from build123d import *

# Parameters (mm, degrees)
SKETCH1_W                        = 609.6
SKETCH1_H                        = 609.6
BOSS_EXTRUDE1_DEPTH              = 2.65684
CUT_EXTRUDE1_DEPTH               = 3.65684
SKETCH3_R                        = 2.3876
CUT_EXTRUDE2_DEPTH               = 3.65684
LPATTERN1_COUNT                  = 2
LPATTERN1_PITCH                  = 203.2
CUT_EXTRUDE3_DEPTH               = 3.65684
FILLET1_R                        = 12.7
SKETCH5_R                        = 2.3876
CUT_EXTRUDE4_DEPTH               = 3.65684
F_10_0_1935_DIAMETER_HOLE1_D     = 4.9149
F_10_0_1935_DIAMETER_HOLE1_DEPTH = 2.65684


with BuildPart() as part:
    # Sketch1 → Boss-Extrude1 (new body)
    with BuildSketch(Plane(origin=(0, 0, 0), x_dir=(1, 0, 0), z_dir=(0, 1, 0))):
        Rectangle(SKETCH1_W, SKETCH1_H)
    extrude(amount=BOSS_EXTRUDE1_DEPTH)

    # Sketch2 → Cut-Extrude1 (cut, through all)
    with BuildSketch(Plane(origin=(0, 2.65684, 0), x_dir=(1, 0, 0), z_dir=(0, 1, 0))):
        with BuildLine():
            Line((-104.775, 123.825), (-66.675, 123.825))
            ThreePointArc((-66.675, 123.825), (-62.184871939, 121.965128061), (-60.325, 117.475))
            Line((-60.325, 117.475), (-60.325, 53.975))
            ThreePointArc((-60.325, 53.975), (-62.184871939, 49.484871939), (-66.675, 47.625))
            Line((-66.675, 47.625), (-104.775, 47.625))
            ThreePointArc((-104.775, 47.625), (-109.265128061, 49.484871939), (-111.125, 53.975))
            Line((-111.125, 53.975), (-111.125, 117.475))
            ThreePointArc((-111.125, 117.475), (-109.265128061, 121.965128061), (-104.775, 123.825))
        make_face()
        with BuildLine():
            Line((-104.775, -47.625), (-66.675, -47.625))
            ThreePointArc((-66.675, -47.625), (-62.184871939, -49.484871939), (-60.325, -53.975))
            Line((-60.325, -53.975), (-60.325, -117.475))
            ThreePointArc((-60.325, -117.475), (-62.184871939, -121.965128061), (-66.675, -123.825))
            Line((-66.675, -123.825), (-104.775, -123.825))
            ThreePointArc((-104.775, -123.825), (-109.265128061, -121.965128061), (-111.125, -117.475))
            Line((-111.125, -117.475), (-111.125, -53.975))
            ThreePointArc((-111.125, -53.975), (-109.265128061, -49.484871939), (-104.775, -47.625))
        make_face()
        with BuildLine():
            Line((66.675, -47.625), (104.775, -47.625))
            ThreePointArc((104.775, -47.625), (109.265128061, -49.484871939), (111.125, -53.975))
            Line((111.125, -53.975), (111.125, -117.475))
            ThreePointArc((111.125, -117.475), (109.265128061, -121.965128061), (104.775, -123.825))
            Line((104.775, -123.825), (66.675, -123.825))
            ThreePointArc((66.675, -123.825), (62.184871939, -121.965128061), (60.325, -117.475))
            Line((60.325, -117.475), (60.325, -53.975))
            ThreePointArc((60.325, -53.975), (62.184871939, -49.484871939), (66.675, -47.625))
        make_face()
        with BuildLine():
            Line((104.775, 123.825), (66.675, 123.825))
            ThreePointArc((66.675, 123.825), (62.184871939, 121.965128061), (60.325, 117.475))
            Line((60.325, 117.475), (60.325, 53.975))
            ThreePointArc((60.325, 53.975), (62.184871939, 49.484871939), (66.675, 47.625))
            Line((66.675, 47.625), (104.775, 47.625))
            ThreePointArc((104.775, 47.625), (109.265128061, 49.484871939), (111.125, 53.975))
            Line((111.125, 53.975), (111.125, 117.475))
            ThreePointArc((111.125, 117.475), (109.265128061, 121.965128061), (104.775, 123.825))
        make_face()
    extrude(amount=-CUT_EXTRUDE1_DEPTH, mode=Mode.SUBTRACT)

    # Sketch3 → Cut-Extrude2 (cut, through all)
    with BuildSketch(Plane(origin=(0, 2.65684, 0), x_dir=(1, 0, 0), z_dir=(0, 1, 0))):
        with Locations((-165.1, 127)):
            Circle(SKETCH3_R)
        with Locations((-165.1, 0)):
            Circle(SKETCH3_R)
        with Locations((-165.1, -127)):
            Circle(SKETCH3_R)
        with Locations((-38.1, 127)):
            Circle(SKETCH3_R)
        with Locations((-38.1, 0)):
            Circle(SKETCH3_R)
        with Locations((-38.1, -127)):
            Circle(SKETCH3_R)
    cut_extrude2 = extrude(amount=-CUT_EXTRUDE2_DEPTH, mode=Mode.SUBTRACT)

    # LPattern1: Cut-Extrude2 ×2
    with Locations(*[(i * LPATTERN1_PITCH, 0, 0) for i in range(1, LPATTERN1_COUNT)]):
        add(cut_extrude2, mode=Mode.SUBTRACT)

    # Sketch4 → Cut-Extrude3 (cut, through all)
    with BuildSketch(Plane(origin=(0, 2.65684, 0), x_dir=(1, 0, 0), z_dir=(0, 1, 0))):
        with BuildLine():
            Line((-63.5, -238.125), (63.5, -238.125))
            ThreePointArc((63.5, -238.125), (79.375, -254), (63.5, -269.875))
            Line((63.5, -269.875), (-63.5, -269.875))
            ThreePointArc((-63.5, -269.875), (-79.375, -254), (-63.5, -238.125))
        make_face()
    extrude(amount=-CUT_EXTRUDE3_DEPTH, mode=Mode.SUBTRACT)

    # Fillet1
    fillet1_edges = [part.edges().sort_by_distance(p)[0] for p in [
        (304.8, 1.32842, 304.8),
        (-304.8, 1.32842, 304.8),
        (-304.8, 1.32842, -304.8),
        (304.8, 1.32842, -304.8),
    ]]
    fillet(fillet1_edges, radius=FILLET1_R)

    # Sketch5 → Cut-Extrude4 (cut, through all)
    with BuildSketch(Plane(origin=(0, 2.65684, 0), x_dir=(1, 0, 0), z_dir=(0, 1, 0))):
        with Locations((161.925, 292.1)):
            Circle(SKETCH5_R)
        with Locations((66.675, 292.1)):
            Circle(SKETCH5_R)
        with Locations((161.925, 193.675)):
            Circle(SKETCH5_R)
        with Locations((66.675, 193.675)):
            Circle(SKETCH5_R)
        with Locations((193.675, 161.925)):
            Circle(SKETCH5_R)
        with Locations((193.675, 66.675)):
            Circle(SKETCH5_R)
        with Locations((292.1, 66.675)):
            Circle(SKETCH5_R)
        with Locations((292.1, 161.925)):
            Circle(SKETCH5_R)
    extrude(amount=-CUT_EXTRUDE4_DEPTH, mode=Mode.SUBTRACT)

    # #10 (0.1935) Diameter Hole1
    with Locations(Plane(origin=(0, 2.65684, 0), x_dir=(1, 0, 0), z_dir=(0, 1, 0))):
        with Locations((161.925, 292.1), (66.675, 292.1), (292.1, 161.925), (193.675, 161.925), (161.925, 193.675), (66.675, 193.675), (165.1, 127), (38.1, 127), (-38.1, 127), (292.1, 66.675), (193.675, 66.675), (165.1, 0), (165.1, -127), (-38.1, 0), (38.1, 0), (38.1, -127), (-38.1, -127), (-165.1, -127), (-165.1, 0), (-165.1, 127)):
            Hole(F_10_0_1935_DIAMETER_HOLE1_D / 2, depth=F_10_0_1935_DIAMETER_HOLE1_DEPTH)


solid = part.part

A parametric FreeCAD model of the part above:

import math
import FreeCAD as App
import Part
import Sketcher

V = App.Vector
Q = App.Units.Quantity


def edges_at(feature, points):
    """Names of the edges that pass closest to the given points."""
    edges = feature.Shape.Edges
    near = lambda p: min(range(len(edges)), key=lambda i: edges[i].distToShape(Part.Vertex(*p))[0])
    return sorted({f"Edge{near(p) + 1}" for p in points})

doc = App.newDocument("Part")
body = doc.addObject("PartDesign::Body", "Body")

# Sketch on XZ plane
sketch1 = body.newObject("Sketcher::SketchObject", "Sketch")
sketch1.AttachmentSupport = (doc.getObject("XZ_Plane"), [""])
sketch1.MapMode = "FlatFace"
sketch1.addGeometry(Part.LineSegment(V(-305, -305, 0), V(-305, 305, 0)), False)
sketch1.addGeometry(Part.LineSegment(V(-305, 305, 0), V(305, 305, 0)), False)
sketch1.addGeometry(Part.LineSegment(V(305, 305, 0), V(305, -305, 0)), False)
sketch1.addGeometry(Part.LineSegment(V(305, -305, 0), V(-305, -305, 0)), False)
sketch1.addConstraint(Sketcher.Constraint("Coincident", 0, 2, 1, 1))
sketch1.addConstraint(Sketcher.Constraint("Coincident", 1, 2, 2, 1))
sketch1.addConstraint(Sketcher.Constraint("Coincident", 2, 2, 3, 1))
sketch1.addConstraint(Sketcher.Constraint("Coincident", 3, 2, 0, 1))
sketch1.addConstraint(Sketcher.Constraint("Vertical", 0))
sketch1.addConstraint(Sketcher.Constraint("Horizontal", 1))
sketch1.addConstraint(Sketcher.Constraint("Vertical", 2))
sketch1.addConstraint(Sketcher.Constraint("Horizontal", 3))
sketch1.addConstraint(Sketcher.Constraint("Symmetric", 0, 2, 2, 2, -1, 1))
sketch1.addConstraint(Sketcher.Constraint("Equal", 3, 0))
sketch1.addConstraint(Sketcher.Constraint("DistanceX", 1, 1, 1, 2, Q("24 in")))
pad1 = body.newObject("PartDesign::Pad", "Pad")
pad1.Profile = sketch1
pad1.Length = Q("0.1046 in")
pad1.Reversed = True

# Sketch on XZ plane
sketch2 = body.newObject("Sketcher::SketchObject", "Sketch001")
sketch2.AttachmentSupport = (doc.getObject("XZ_Plane"), [""])
sketch2.MapMode = "FlatFace"
sketch2.AttachmentOffset = App.Placement(V(0, 0, -0.1046 * 25.4), App.Rotation())
sketch2.addGeometry(Part.LineSegment(V(-67, -124, 0), V(-105, -124, 0)), False)
sketch2.addGeometry(Part.ArcOfCircle(Part.Circle(V(-105, -117, 0), V(0, 0, 1), 6), math.radians(180), math.radians(270)), False)
sketch2.addGeometry(Part.LineSegment(V(-111, -117, 0), V(-111, -54, 0)), False)
sketch2.addGeometry(Part.ArcOfCircle(Part.Circle(V(-105, -54, 0), V(0, 0, 1), 6), math.radians(90), math.radians(180)), False)
sketch2.addGeometry(Part.LineSegment(V(-105, -48, 0), V(-67, -48, 0)), False)
sketch2.addGeometry(Part.ArcOfCircle(Part.Circle(V(-67, -54, 0), V(0, 0, 1), 6), math.radians(0), math.radians(90)), False)
sketch2.addGeometry(Part.LineSegment(V(-60, -54, 0), V(-60, -117, 0)), False)
sketch2.addGeometry(Part.ArcOfCircle(Part.Circle(V(-67, -117, 0), V(0, 0, 1), 6), math.radians(-90), math.radians(0)), False)
sketch2.addGeometry(Part.LineSegment(V(-67, 48, 0), V(-105, 48, 0)), False)
sketch2.addGeometry(Part.ArcOfCircle(Part.Circle(V(-105, 54, 0), V(0, 0, 1), 6), math.radians(180), math.radians(270)), False)
sketch2.addGeometry(Part.LineSegment(V(-111, 54, 0), V(-111, 117, 0)), False)
sketch2.addGeometry(Part.ArcOfCircle(Part.Circle(V(-105, 117, 0), V(0, 0, 1), 6), math.radians(90), math.radians(180)), False)
sketch2.addGeometry(Part.LineSegment(V(-105, 124, 0), V(-67, 124, 0)), False)
sketch2.addGeometry(Part.ArcOfCircle(Part.Circle(V(-67, 117, 0), V(0, 0, 1), 6), math.radians(0), math.radians(90)), False)
sketch2.addGeometry(Part.LineSegment(V(-60, 117, 0), V(-60, 54, 0)), False)
sketch2.addGeometry(Part.ArcOfCircle(Part.Circle(V(-67, 54, 0), V(0, 0, 1), 6), math.radians(-90), math.radians(0)), False)
sketch2.addGeometry(Part.LineSegment(V(105, 48, 0), V(67, 48, 0)), False)
sketch2.addGeometry(Part.ArcOfCircle(Part.Circle(V(67, 54, 0), V(0, 0, 1), 6), math.radians(180), math.radians(270)), False)
sketch2.addGeometry(Part.LineSegment(V(60, 54, 0), V(60, 117, 0)), False)
sketch2.addGeometry(Part.ArcOfCircle(Part.Circle(V(67, 117, 0), V(0, 0, 1), 6), math.radians(90), math.radians(180)), False)
sketch2.addGeometry(Part.LineSegment(V(67, 124, 0), V(105, 124, 0)), False)
sketch2.addGeometry(Part.ArcOfCircle(Part.Circle(V(105, 117, 0), V(0, 0, 1), 6), math.radians(0), math.radians(90)), False)
sketch2.addGeometry(Part.LineSegment(V(111, 117, 0), V(111, 54, 0)), False)
sketch2.addGeometry(Part.ArcOfCircle(Part.Circle(V(105, 54, 0), V(0, 0, 1), 6), math.radians(-90), math.radians(0)), False)
sketch2.addGeometry(Part.LineSegment(V(105, -124, 0), V(67, -124, 0)), False)
sketch2.addGeometry(Part.ArcOfCircle(Part.Circle(V(67, -117, 0), V(0, 0, 1), 6), math.radians(180), math.radians(270)), False)
sketch2.addGeometry(Part.LineSegment(V(60, -117, 0), V(60, -54, 0)), False)
sketch2.addGeometry(Part.ArcOfCircle(Part.Circle(V(67, -54, 0), V(0, 0, 1), 6), math.radians(90), math.radians(180)), False)
sketch2.addGeometry(Part.LineSegment(V(67, -48, 0), V(105, -48, 0)), False)
sketch2.addGeometry(Part.ArcOfCircle(Part.Circle(V(105, -54, 0), V(0, 0, 1), 6), math.radians(0), math.radians(90)), False)
sketch2.addGeometry(Part.LineSegment(V(111, -54, 0), V(111, -117, 0)), False)
sketch2.addGeometry(Part.ArcOfCircle(Part.Circle(V(105, -117, 0), V(0, 0, 1), 6), math.radians(-90), math.radians(0)), False)
sketch2.addConstraint(Sketcher.Constraint("Tangent", 0, 2, 1, 2))
sketch2.addConstraint(Sketcher.Constraint("Tangent", 1, 1, 2, 1))
sketch2.addConstraint(Sketcher.Constraint("Tangent", 2, 2, 3, 2))
sketch2.addConstraint(Sketcher.Constraint("Tangent", 3, 1, 4, 1))
sketch2.addConstraint(Sketcher.Constraint("Tangent", 4, 2, 5, 2))
sketch2.addConstraint(Sketcher.Constraint("Tangent", 5, 1, 6, 1))
sketch2.addConstraint(Sketcher.Constraint("Tangent", 6, 2, 7, 2))
sketch2.addConstraint(Sketcher.Constraint("Tangent", 7, 1, 0, 1))
sketch2.addConstraint(Sketcher.Constraint("Tangent", 8, 2, 9, 2))
sketch2.addConstraint(Sketcher.Constraint("Tangent", 9, 1, 10, 1))
sketch2.addConstraint(Sketcher.Constraint("Tangent", 10, 2, 11, 2))
sketch2.addConstraint(Sketcher.Constraint("Tangent", 11, 1, 12, 1))
sketch2.addConstraint(Sketcher.Constraint("Tangent", 12, 2, 13, 2))
sketch2.addConstraint(Sketcher.Constraint("Tangent", 13, 1, 14, 1))
sketch2.addConstraint(Sketcher.Constraint("Tangent", 14, 2, 15, 2))
sketch2.addConstraint(Sketcher.Constraint("Tangent", 15, 1, 8, 1))
sketch2.addConstraint(Sketcher.Constraint("Tangent", 16, 2, 17, 2))
sketch2.addConstraint(Sketcher.Constraint("Tangent", 17, 1, 18, 1))
sketch2.addConstraint(Sketcher.Constraint("Tangent", 18, 2, 19, 2))
sketch2.addConstraint(Sketcher.Constraint("Tangent", 19, 1, 20, 1))
sketch2.addConstraint(Sketcher.Constraint("Tangent", 20, 2, 21, 2))
sketch2.addConstraint(Sketcher.Constraint("Tangent", 21, 1, 22, 1))
sketch2.addConstraint(Sketcher.Constraint("Tangent", 22, 2, 23, 2))
sketch2.addConstraint(Sketcher.Constraint("Tangent", 23, 1, 16, 1))
sketch2.addConstraint(Sketcher.Constraint("Tangent", 24, 2, 25, 2))
sketch2.addConstraint(Sketcher.Constraint("Tangent", 25, 1, 26, 1))
sketch2.addConstraint(Sketcher.Constraint("Tangent", 26, 2, 27, 2))
sketch2.addConstraint(Sketcher.Constraint("Tangent", 27, 1, 28, 1))
sketch2.addConstraint(Sketcher.Constraint("Tangent", 28, 2, 29, 2))
sketch2.addConstraint(Sketcher.Constraint("Tangent", 29, 1, 30, 1))
sketch2.addConstraint(Sketcher.Constraint("Tangent", 30, 2, 31, 2))
sketch2.addConstraint(Sketcher.Constraint("Tangent", 31, 1, 24, 1))
sketch2.addConstraint(Sketcher.Constraint("Horizontal", 0))
sketch2.addConstraint(Sketcher.Constraint("Vertical", 2))
sketch2.addConstraint(Sketcher.Constraint("Horizontal", 4))
sketch2.addConstraint(Sketcher.Constraint("Vertical", 6))
sketch2.addConstraint(Sketcher.Constraint("Horizontal", 8))
sketch2.addConstraint(Sketcher.Constraint("Vertical", 10))
sketch2.addConstraint(Sketcher.Constraint("Horizontal", 12))
sketch2.addConstraint(Sketcher.Constraint("Vertical", 14))
sketch2.addConstraint(Sketcher.Constraint("Horizontal", 16))
sketch2.addConstraint(Sketcher.Constraint("Vertical", 18))
sketch2.addConstraint(Sketcher.Constraint("Horizontal", 20))
sketch2.addConstraint(Sketcher.Constraint("Vertical", 22))
sketch2.addConstraint(Sketcher.Constraint("Horizontal", 24))
sketch2.addConstraint(Sketcher.Constraint("Vertical", 26))
sketch2.addConstraint(Sketcher.Constraint("Horizontal", 28))
sketch2.addConstraint(Sketcher.Constraint("Vertical", 30))
sketch2.addConstraint(Sketcher.Constraint("Equal", 1, 3))
sketch2.addConstraint(Sketcher.Constraint("Equal", 3, 5))
sketch2.addConstraint(Sketcher.Constraint("Equal", 5, 7))
sketch2.addConstraint(Sketcher.Constraint("Equal", 7, 9))
sketch2.addConstraint(Sketcher.Constraint("Equal", 9, 11))
sketch2.addConstraint(Sketcher.Constraint("Equal", 11, 13))
sketch2.addConstraint(Sketcher.Constraint("Equal", 13, 15))
sketch2.addConstraint(Sketcher.Constraint("Equal", 15, 17))
sketch2.addConstraint(Sketcher.Constraint("Equal", 17, 19))
sketch2.addConstraint(Sketcher.Constraint("Equal", 19, 21))
sketch2.addConstraint(Sketcher.Constraint("Equal", 21, 23))
sketch2.addConstraint(Sketcher.Constraint("Equal", 23, 25))
sketch2.addConstraint(Sketcher.Constraint("Equal", 25, 27))
sketch2.addConstraint(Sketcher.Constraint("Equal", 27, 29))
sketch2.addConstraint(Sketcher.Constraint("Equal", 29, 31))
sketch2.addConstraint(Sketcher.Constraint("Symmetric", 5, 3, 17, 3, -1, 1))
sketch2.addConstraint(Sketcher.Constraint("Symmetric", 1, 3, 21, 3, -1, 1))
sketch2.addConstraint(Sketcher.Constraint("Symmetric", 13, 3, 25, 3, -1, 1))
sketch2.addConstraint(Sketcher.Constraint("Symmetric", 9, 3, 29, 3, -1, 1))
sketch2.addConstraint(Sketcher.Constraint("Symmetric", 15, 3, 17, 3, -2))
sketch2.addConstraint(Sketcher.Constraint("Symmetric", 11, 3, 21, 3, -2))
sketch2.addConstraint(Sketcher.Constraint("Radius", 1, Q("0.25 in")))
sketch2.addConstraint(Sketcher.Constraint("DistanceX", 0, 2, 0, 1, Q("1.5 in")))
sketch2.addConstraint(Sketcher.Constraint("DistanceY", 2, 1, 2, 2, Q("2.5 in")))
sketch2.addConstraint(Sketcher.Constraint("DistanceY", 27, 3, 16, 2, Q("4 in")))
sketch2.addConstraint(Sketcher.Constraint("DistanceX", 6, 2, 24, 2, Q("5 in")))
pocket1 = body.newObject("PartDesign::Pocket", "Pocket")
pocket1.Profile = sketch2
pocket1.Type = "ThroughAll"
pocket1.Reversed = True

# Sketch on XZ plane
sketch3 = body.newObject("Sketcher::SketchObject", "Sketch002")
sketch3.AttachmentSupport = (doc.getObject("XZ_Plane"), [""])
sketch3.MapMode = "FlatFace"
sketch3.AttachmentOffset = App.Placement(V(0, 0, -0.1046 * 25.4), App.Rotation())
sketch3.addGeometry(Part.Circle(V(-165.1, -127, 0), V(0, 0, 1), 2.4), False)
sketch3.addGeometry(Part.Circle(V(-165.1, 0, 0), V(0, 0, 1), 2.4), False)
sketch3.addGeometry(Part.Circle(V(-165.1, 127, 0), V(0, 0, 1), 2.4), False)
sketch3.addGeometry(Part.Circle(V(-38.1, -127, 0), V(0, 0, 1), 2.4), False)
sketch3.addGeometry(Part.Circle(V(-38.1, 0, 0), V(0, 0, 1), 2.4), False)
sketch3.addGeometry(Part.Circle(V(-38.1, 127, 0), V(0, 0, 1), 2.4), False)
sketch3.addConstraint(Sketcher.Constraint("Equal", 0, 1))
sketch3.addConstraint(Sketcher.Constraint("Equal", 1, 2))
sketch3.addConstraint(Sketcher.Constraint("Equal", 2, 3))
sketch3.addConstraint(Sketcher.Constraint("Equal", 3, 4))
sketch3.addConstraint(Sketcher.Constraint("Equal", 4, 5))
sketch3.addConstraint(Sketcher.Constraint("Symmetric", 0, 3, 2, 3, -1))
sketch3.addConstraint(Sketcher.Constraint("Symmetric", 3, 3, 5, 3, -1))
sketch3.addConstraint(Sketcher.Constraint("PointOnObject", 1, 3, -1))
sketch3.addConstraint(Sketcher.Constraint("PointOnObject", 4, 3, -1))
sketch3.addConstraint(Sketcher.Constraint("Horizontal", 0, 3, 3, 3))
sketch3.addConstraint(Sketcher.Constraint("Vertical", 0, 3, 1, 3))
sketch3.addConstraint(Sketcher.Constraint("Vertical", 3, 3, 4, 3))
sketch3.addConstraint(Sketcher.Constraint("Diameter", 0, Q("0.188 in")))
sketch3.addConstraint(Sketcher.Constraint("DistanceY", 0, 3, -1, 1, Q("5 in")))
sketch3.addConstraint(Sketcher.Constraint("DistanceX", 0, 3, 3, 3, Q("5 in")))
sketch3.addConstraint(Sketcher.Constraint("DistanceX", 0, 3, -1, 1, Q("6.5 in")))
pocket2 = body.newObject("PartDesign::Pocket", "Pocket001")
pocket2.Profile = sketch3
pocket2.Type = "ThroughAll"
pocket2.Reversed = True
doc.recompute()

linearpattern = body.newObject("PartDesign::LinearPattern", "LinearPattern")
linearpattern.Originals = [pocket2]
linearpattern.Direction = (doc.getObject("X_Axis"), [""])
linearpattern.Mode = "offset"
linearpattern.Offset = Q("8 in")
linearpattern.Occurrences = 2
body.Tip = linearpattern

# Sketch on XZ plane
sketch4 = body.newObject("Sketcher::SketchObject", "Sketch003")
sketch4.AttachmentSupport = (doc.getObject("XZ_Plane"), [""])
sketch4.MapMode = "FlatFace"
sketch4.AttachmentOffset = App.Placement(V(0, 0, -0.1046 * 25.4), App.Rotation())
sketch4.addGeometry(Part.LineSegment(V(64, 238, 0), V(-64, 238, 0)), False)
sketch4.addGeometry(Part.ArcOfCircle(Part.Circle(V(-64, 254, 0), V(0, 0, 1), 16), math.radians(90), math.radians(270)), False)
sketch4.addGeometry(Part.LineSegment(V(-64, 270, 0), V(64, 270, 0)), False)
sketch4.addGeometry(Part.ArcOfCircle(Part.Circle(V(64, 254, 0), V(0, 0, 1), 16), math.radians(-90), math.radians(90)), False)
sketch4.addConstraint(Sketcher.Constraint("Tangent", 0, 2, 1, 2))
sketch4.addConstraint(Sketcher.Constraint("Tangent", 1, 1, 2, 1))
sketch4.addConstraint(Sketcher.Constraint("Tangent", 2, 2, 3, 2))
sketch4.addConstraint(Sketcher.Constraint("Tangent", 3, 1, 0, 1))
sketch4.addConstraint(Sketcher.Constraint("Horizontal", 0))
sketch4.addConstraint(Sketcher.Constraint("Horizontal", 2))
sketch4.addConstraint(Sketcher.Constraint("DistanceX", 0, 2, 0, 1, Q("5 in")))
sketch4.addConstraint(Sketcher.Constraint("DistanceY", -1, 1, 1, 3, Q("10 in")))
sketch4.addConstraint(Sketcher.Constraint("Radius", 1, Q("0.625 in")))
sketch4.addConstraint(Sketcher.Constraint("DistanceX", 1, 3, -1, 1, Q("2.5 in")))
pocket3 = body.newObject("PartDesign::Pocket", "Pocket002")
pocket3.Profile = sketch4
pocket3.Type = "ThroughAll"
pocket3.Reversed = True
doc.recompute()

fillet = body.newObject("PartDesign::Fillet", "Fillet")
fillet.Base = (pocket3, edges_at(pocket3, [
    (304.8, 1.328, 304.8),
    (-304.8, 1.328, 304.8),
    (-304.8, 1.328, -304.8),
    (304.8, 1.328, -304.8),
]))
fillet.Radius = Q("0.5 in")

# Sketch on XZ plane
sketch5 = body.newObject("Sketcher::SketchObject", "Sketch004")
sketch5.AttachmentSupport = (doc.getObject("XZ_Plane"), [""])
sketch5.MapMode = "FlatFace"
sketch5.AttachmentOffset = App.Placement(V(0, 0, -0.1046 * 25.4), App.Rotation())
sketch5.addGeometry(Part.Circle(V(161.9, -292.1, 0), V(0, 0, 1), 2.4), False)
sketch5.addGeometry(Part.Circle(V(66.7, -292.1, 0), V(0, 0, 1), 2.4), False)
sketch5.addGeometry(Part.Circle(V(161.9, -193.7, 0), V(0, 0, 1), 2.4), False)
sketch5.addGeometry(Part.Circle(V(66.7, -193.7, 0), V(0, 0, 1), 2.4), False)
sketch5.addGeometry(Part.Circle(V(193.7, -161.9, 0), V(0, 0, 1), 2.4), False)
sketch5.addGeometry(Part.Circle(V(193.7, -66.7, 0), V(0, 0, 1), 2.4), False)
sketch5.addGeometry(Part.Circle(V(292.1, -66.7, 0), V(0, 0, 1), 2.4), False)
sketch5.addGeometry(Part.Circle(V(292.1, -161.9, 0), V(0, 0, 1), 2.4), False)
sketch5.addConstraint(Sketcher.Constraint("Equal", 0, 1))
sketch5.addConstraint(Sketcher.Constraint("Equal", 1, 2))
sketch5.addConstraint(Sketcher.Constraint("Equal", 2, 3))
sketch5.addConstraint(Sketcher.Constraint("Equal", 3, 4))
sketch5.addConstraint(Sketcher.Constraint("Equal", 4, 5))
sketch5.addConstraint(Sketcher.Constraint("Equal", 5, 6))
sketch5.addConstraint(Sketcher.Constraint("Equal", 6, 7))
sketch5.addConstraint(Sketcher.Constraint("Horizontal", 0, 3, 1, 3))
sketch5.addConstraint(Sketcher.Constraint("Horizontal", 2, 3, 3, 3))
sketch5.addConstraint(Sketcher.Constraint("Horizontal", 5, 3, 6, 3))
sketch5.addConstraint(Sketcher.Constraint("Horizontal", 4, 3, 7, 3))
sketch5.addConstraint(Sketcher.Constraint("Vertical", 0, 3, 2, 3))
sketch5.addConstraint(Sketcher.Constraint("Vertical", 1, 3, 3, 3))
sketch5.addConstraint(Sketcher.Constraint("Vertical", 4, 3, 5, 3))
sketch5.addConstraint(Sketcher.Constraint("Vertical", 6, 3, 7, 3))
sketch5.addConstraint(Sketcher.Constraint("Diameter", 0, Q("0.188 in")))
sketch5.addConstraint(Sketcher.Constraint("DistanceX", 3, 3, 4, 3, Q("5 in")))
sketch5.addConstraint(Sketcher.Constraint("DistanceY", 2, 3, 5, 3, Q("5 in")))
sketch5.addConstraint(Sketcher.Constraint("DistanceY", 0, 3, -1, 1, Q("11.5 in")))
sketch5.addConstraint(Sketcher.Constraint("DistanceX", -1, 1, 6, 3, Q("11.5 in")))
sketch5.addConstraint(Sketcher.Constraint("DistanceX", 1, 3, 0, 3, Q("3.75 in")))
sketch5.addConstraint(Sketcher.Constraint("DistanceY", 2, 3, 4, 3, Q("1.25 in")))
sketch5.addConstraint(Sketcher.Constraint("DistanceX", -1, 1, 0, 3, Q("6.375 in")))
sketch5.addConstraint(Sketcher.Constraint("DistanceY", 2, 3, -1, 1, Q("7.625 in")))
pocket4 = body.newObject("PartDesign::Pocket", "Pocket003")
pocket4.Profile = sketch5
pocket4.Type = "ThroughAll"
pocket4.Reversed = True

# Sketch on XZ plane
sketch6 = body.newObject("Sketcher::SketchObject", "Sketch005")
sketch6.AttachmentSupport = (doc.getObject("XZ_Plane"), [""])
sketch6.MapMode = "FlatFace"
sketch6.AttachmentOffset = App.Placement(V(0, 0, -0.1046 * 25.4), App.Rotation())
sketch6.addGeometry(Part.Circle(V(161.9, -292.1, 0), V(0, 0, 1), 2.5), False)
sketch6.addGeometry(Part.Circle(V(66.7, -292.1, 0), V(0, 0, 1), 2.5), False)
sketch6.addGeometry(Part.Circle(V(292.1, -161.9, 0), V(0, 0, 1), 2.5), False)
sketch6.addGeometry(Part.Circle(V(193.7, -161.9, 0), V(0, 0, 1), 2.5), False)
sketch6.addGeometry(Part.Circle(V(161.9, -193.7, 0), V(0, 0, 1), 2.5), False)
sketch6.addGeometry(Part.Circle(V(66.7, -193.7, 0), V(0, 0, 1), 2.5), False)
sketch6.addGeometry(Part.Circle(V(165.1, -127, 0), V(0, 0, 1), 2.5), False)
sketch6.addGeometry(Part.Circle(V(38.1, -127, 0), V(0, 0, 1), 2.5), False)
sketch6.addGeometry(Part.Circle(V(-38.1, -127, 0), V(0, 0, 1), 2.5), False)
sketch6.addGeometry(Part.Circle(V(292.1, -66.7, 0), V(0, 0, 1), 2.5), False)
sketch6.addGeometry(Part.Circle(V(193.7, -66.7, 0), V(0, 0, 1), 2.5), False)
sketch6.addGeometry(Part.Circle(V(165.1, 0, 0), V(0, 0, 1), 2.5), False)
sketch6.addGeometry(Part.Circle(V(165.1, 127, 0), V(0, 0, 1), 2.5), False)
sketch6.addGeometry(Part.Circle(V(-38.1, 0, 0), V(0, 0, 1), 2.5), False)
sketch6.addGeometry(Part.Circle(V(38.1, 0, 0), V(0, 0, 1), 2.5), False)
sketch6.addGeometry(Part.Circle(V(38.1, 127, 0), V(0, 0, 1), 2.5), False)
sketch6.addGeometry(Part.Circle(V(-38.1, 127, 0), V(0, 0, 1), 2.5), False)
sketch6.addGeometry(Part.Circle(V(-165.1, 127, 0), V(0, 0, 1), 2.5), False)
sketch6.addGeometry(Part.Circle(V(-165.1, 0, 0), V(0, 0, 1), 2.5), False)
sketch6.addGeometry(Part.Circle(V(-165.1, -127, 0), V(0, 0, 1), 2.5), False)
sketch6.addConstraint(Sketcher.Constraint("Equal", 0, 1))
sketch6.addConstraint(Sketcher.Constraint("Equal", 1, 2))
sketch6.addConstraint(Sketcher.Constraint("Equal", 2, 3))
sketch6.addConstraint(Sketcher.Constraint("Equal", 3, 4))
sketch6.addConstraint(Sketcher.Constraint("Equal", 4, 5))
sketch6.addConstraint(Sketcher.Constraint("Equal", 5, 6))
sketch6.addConstraint(Sketcher.Constraint("Equal", 6, 7))
sketch6.addConstraint(Sketcher.Constraint("Equal", 7, 8))
sketch6.addConstraint(Sketcher.Constraint("Equal", 8, 9))
sketch6.addConstraint(Sketcher.Constraint("Equal", 9, 10))
sketch6.addConstraint(Sketcher.Constraint("Equal", 10, 11))
sketch6.addConstraint(Sketcher.Constraint("Equal", 11, 12))
sketch6.addConstraint(Sketcher.Constraint("Equal", 12, 13))
sketch6.addConstraint(Sketcher.Constraint("Equal", 13, 14))
sketch6.addConstraint(Sketcher.Constraint("Equal", 14, 15))
sketch6.addConstraint(Sketcher.Constraint("Equal", 15, 16))
sketch6.addConstraint(Sketcher.Constraint("Equal", 16, 17))
sketch6.addConstraint(Sketcher.Constraint("Equal", 17, 18))
sketch6.addConstraint(Sketcher.Constraint("Equal", 18, 19))
sketch6.addConstraint(Sketcher.Constraint("Symmetric", 13, 3, 14, 3, -1, 1))
sketch6.addConstraint(Sketcher.Constraint("Symmetric", 8, 3, 15, 3, -1, 1))
sketch6.addConstraint(Sketcher.Constraint("Symmetric", 7, 3, 16, 3, -1, 1))
sketch6.addConstraint(Sketcher.Constraint("Symmetric", 6, 3, 17, 3, -1, 1))
sketch6.addConstraint(Sketcher.Constraint("Symmetric", 11, 3, 18, 3, -1, 1))
sketch6.addConstraint(Sketcher.Constraint("Symmetric", 12, 3, 19, 3, -1, 1))
sketch6.addConstraint(Sketcher.Constraint("Symmetric", 7, 3, 8, 3, -2))
sketch6.addConstraint(Sketcher.Constraint("Symmetric", 12, 3, 17, 3, -2))
sketch6.addConstraint(Sketcher.Constraint("PointOnObject", 11, 3, -1))
sketch6.addConstraint(Sketcher.Constraint("PointOnObject", 13, 3, -1))
sketch6.addConstraint(Sketcher.Constraint("Horizontal", 0, 3, 1, 3))
sketch6.addConstraint(Sketcher.Constraint("Horizontal", 2, 3, 3, 3))
sketch6.addConstraint(Sketcher.Constraint("Horizontal", 4, 3, 5, 3))
sketch6.addConstraint(Sketcher.Constraint("Horizontal", 6, 3, 7, 3))
sketch6.addConstraint(Sketcher.Constraint("Horizontal", 9, 3, 10, 3))
sketch6.addConstraint(Sketcher.Constraint("Vertical", 0, 3, 4, 3))
sketch6.addConstraint(Sketcher.Constraint("Vertical", 1, 3, 5, 3))
sketch6.addConstraint(Sketcher.Constraint("Vertical", 2, 3, 9, 3))
sketch6.addConstraint(Sketcher.Constraint("Vertical", 3, 3, 10, 3))
sketch6.addConstraint(Sketcher.Constraint("Vertical", 6, 3, 11, 3))
sketch6.addConstraint(Sketcher.Constraint("Vertical", 8, 3, 13, 3))
sketch6.addConstraint(Sketcher.Constraint("DistanceY", 6, 3, -1, 1, Q("5 in")))
sketch6.addConstraint(Sketcher.Constraint("DistanceX", 1, 3, 3, 3, Q("5 in")))
sketch6.addConstraint(Sketcher.Constraint("DistanceX", 6, 3, 2, 3, Q("5 in")))
sketch6.addConstraint(Sketcher.Constraint("DistanceX", 7, 3, 6, 3, Q("5 in")))
sketch6.addConstraint(Sketcher.Constraint("DistanceX", 8, 3, 7, 3, Q("3 in")))
sketch6.addConstraint(Sketcher.Constraint("DistanceY", 4, 3, 9, 3, Q("5 in")))
sketch6.addConstraint(Sketcher.Constraint("Diameter", 0, Q("0.1935 in")))
sketch6.addConstraint(Sketcher.Constraint("DistanceY", 0, 3, -1, 1, Q("11.5 in")))
sketch6.addConstraint(Sketcher.Constraint("DistanceX", 1, 3, 0, 3, Q("3.75 in")))
sketch6.addConstraint(Sketcher.Constraint("DistanceY", 4, 3, 3, 3, Q("1.25 in")))
sketch6.addConstraint(Sketcher.Constraint("DistanceX", -1, 1, 0, 3, Q("6.375 in")))
sketch6.addConstraint(Sketcher.Constraint("DistanceY", 2, 3, -1, 1, Q("6.375 in")))
doc.recompute()
hole = body.newObject("PartDesign::Hole", "Hole")
hole.Profile = sketch6
hole.ThreadType = "None"
hole.Diameter = Q("0.1935 in")
hole.DepthType = "Dimension"
hole.Depth = Q("0.1046 in")
hole.DrillPoint = "Flat"
hole.Reversed = True

doc.recompute()
